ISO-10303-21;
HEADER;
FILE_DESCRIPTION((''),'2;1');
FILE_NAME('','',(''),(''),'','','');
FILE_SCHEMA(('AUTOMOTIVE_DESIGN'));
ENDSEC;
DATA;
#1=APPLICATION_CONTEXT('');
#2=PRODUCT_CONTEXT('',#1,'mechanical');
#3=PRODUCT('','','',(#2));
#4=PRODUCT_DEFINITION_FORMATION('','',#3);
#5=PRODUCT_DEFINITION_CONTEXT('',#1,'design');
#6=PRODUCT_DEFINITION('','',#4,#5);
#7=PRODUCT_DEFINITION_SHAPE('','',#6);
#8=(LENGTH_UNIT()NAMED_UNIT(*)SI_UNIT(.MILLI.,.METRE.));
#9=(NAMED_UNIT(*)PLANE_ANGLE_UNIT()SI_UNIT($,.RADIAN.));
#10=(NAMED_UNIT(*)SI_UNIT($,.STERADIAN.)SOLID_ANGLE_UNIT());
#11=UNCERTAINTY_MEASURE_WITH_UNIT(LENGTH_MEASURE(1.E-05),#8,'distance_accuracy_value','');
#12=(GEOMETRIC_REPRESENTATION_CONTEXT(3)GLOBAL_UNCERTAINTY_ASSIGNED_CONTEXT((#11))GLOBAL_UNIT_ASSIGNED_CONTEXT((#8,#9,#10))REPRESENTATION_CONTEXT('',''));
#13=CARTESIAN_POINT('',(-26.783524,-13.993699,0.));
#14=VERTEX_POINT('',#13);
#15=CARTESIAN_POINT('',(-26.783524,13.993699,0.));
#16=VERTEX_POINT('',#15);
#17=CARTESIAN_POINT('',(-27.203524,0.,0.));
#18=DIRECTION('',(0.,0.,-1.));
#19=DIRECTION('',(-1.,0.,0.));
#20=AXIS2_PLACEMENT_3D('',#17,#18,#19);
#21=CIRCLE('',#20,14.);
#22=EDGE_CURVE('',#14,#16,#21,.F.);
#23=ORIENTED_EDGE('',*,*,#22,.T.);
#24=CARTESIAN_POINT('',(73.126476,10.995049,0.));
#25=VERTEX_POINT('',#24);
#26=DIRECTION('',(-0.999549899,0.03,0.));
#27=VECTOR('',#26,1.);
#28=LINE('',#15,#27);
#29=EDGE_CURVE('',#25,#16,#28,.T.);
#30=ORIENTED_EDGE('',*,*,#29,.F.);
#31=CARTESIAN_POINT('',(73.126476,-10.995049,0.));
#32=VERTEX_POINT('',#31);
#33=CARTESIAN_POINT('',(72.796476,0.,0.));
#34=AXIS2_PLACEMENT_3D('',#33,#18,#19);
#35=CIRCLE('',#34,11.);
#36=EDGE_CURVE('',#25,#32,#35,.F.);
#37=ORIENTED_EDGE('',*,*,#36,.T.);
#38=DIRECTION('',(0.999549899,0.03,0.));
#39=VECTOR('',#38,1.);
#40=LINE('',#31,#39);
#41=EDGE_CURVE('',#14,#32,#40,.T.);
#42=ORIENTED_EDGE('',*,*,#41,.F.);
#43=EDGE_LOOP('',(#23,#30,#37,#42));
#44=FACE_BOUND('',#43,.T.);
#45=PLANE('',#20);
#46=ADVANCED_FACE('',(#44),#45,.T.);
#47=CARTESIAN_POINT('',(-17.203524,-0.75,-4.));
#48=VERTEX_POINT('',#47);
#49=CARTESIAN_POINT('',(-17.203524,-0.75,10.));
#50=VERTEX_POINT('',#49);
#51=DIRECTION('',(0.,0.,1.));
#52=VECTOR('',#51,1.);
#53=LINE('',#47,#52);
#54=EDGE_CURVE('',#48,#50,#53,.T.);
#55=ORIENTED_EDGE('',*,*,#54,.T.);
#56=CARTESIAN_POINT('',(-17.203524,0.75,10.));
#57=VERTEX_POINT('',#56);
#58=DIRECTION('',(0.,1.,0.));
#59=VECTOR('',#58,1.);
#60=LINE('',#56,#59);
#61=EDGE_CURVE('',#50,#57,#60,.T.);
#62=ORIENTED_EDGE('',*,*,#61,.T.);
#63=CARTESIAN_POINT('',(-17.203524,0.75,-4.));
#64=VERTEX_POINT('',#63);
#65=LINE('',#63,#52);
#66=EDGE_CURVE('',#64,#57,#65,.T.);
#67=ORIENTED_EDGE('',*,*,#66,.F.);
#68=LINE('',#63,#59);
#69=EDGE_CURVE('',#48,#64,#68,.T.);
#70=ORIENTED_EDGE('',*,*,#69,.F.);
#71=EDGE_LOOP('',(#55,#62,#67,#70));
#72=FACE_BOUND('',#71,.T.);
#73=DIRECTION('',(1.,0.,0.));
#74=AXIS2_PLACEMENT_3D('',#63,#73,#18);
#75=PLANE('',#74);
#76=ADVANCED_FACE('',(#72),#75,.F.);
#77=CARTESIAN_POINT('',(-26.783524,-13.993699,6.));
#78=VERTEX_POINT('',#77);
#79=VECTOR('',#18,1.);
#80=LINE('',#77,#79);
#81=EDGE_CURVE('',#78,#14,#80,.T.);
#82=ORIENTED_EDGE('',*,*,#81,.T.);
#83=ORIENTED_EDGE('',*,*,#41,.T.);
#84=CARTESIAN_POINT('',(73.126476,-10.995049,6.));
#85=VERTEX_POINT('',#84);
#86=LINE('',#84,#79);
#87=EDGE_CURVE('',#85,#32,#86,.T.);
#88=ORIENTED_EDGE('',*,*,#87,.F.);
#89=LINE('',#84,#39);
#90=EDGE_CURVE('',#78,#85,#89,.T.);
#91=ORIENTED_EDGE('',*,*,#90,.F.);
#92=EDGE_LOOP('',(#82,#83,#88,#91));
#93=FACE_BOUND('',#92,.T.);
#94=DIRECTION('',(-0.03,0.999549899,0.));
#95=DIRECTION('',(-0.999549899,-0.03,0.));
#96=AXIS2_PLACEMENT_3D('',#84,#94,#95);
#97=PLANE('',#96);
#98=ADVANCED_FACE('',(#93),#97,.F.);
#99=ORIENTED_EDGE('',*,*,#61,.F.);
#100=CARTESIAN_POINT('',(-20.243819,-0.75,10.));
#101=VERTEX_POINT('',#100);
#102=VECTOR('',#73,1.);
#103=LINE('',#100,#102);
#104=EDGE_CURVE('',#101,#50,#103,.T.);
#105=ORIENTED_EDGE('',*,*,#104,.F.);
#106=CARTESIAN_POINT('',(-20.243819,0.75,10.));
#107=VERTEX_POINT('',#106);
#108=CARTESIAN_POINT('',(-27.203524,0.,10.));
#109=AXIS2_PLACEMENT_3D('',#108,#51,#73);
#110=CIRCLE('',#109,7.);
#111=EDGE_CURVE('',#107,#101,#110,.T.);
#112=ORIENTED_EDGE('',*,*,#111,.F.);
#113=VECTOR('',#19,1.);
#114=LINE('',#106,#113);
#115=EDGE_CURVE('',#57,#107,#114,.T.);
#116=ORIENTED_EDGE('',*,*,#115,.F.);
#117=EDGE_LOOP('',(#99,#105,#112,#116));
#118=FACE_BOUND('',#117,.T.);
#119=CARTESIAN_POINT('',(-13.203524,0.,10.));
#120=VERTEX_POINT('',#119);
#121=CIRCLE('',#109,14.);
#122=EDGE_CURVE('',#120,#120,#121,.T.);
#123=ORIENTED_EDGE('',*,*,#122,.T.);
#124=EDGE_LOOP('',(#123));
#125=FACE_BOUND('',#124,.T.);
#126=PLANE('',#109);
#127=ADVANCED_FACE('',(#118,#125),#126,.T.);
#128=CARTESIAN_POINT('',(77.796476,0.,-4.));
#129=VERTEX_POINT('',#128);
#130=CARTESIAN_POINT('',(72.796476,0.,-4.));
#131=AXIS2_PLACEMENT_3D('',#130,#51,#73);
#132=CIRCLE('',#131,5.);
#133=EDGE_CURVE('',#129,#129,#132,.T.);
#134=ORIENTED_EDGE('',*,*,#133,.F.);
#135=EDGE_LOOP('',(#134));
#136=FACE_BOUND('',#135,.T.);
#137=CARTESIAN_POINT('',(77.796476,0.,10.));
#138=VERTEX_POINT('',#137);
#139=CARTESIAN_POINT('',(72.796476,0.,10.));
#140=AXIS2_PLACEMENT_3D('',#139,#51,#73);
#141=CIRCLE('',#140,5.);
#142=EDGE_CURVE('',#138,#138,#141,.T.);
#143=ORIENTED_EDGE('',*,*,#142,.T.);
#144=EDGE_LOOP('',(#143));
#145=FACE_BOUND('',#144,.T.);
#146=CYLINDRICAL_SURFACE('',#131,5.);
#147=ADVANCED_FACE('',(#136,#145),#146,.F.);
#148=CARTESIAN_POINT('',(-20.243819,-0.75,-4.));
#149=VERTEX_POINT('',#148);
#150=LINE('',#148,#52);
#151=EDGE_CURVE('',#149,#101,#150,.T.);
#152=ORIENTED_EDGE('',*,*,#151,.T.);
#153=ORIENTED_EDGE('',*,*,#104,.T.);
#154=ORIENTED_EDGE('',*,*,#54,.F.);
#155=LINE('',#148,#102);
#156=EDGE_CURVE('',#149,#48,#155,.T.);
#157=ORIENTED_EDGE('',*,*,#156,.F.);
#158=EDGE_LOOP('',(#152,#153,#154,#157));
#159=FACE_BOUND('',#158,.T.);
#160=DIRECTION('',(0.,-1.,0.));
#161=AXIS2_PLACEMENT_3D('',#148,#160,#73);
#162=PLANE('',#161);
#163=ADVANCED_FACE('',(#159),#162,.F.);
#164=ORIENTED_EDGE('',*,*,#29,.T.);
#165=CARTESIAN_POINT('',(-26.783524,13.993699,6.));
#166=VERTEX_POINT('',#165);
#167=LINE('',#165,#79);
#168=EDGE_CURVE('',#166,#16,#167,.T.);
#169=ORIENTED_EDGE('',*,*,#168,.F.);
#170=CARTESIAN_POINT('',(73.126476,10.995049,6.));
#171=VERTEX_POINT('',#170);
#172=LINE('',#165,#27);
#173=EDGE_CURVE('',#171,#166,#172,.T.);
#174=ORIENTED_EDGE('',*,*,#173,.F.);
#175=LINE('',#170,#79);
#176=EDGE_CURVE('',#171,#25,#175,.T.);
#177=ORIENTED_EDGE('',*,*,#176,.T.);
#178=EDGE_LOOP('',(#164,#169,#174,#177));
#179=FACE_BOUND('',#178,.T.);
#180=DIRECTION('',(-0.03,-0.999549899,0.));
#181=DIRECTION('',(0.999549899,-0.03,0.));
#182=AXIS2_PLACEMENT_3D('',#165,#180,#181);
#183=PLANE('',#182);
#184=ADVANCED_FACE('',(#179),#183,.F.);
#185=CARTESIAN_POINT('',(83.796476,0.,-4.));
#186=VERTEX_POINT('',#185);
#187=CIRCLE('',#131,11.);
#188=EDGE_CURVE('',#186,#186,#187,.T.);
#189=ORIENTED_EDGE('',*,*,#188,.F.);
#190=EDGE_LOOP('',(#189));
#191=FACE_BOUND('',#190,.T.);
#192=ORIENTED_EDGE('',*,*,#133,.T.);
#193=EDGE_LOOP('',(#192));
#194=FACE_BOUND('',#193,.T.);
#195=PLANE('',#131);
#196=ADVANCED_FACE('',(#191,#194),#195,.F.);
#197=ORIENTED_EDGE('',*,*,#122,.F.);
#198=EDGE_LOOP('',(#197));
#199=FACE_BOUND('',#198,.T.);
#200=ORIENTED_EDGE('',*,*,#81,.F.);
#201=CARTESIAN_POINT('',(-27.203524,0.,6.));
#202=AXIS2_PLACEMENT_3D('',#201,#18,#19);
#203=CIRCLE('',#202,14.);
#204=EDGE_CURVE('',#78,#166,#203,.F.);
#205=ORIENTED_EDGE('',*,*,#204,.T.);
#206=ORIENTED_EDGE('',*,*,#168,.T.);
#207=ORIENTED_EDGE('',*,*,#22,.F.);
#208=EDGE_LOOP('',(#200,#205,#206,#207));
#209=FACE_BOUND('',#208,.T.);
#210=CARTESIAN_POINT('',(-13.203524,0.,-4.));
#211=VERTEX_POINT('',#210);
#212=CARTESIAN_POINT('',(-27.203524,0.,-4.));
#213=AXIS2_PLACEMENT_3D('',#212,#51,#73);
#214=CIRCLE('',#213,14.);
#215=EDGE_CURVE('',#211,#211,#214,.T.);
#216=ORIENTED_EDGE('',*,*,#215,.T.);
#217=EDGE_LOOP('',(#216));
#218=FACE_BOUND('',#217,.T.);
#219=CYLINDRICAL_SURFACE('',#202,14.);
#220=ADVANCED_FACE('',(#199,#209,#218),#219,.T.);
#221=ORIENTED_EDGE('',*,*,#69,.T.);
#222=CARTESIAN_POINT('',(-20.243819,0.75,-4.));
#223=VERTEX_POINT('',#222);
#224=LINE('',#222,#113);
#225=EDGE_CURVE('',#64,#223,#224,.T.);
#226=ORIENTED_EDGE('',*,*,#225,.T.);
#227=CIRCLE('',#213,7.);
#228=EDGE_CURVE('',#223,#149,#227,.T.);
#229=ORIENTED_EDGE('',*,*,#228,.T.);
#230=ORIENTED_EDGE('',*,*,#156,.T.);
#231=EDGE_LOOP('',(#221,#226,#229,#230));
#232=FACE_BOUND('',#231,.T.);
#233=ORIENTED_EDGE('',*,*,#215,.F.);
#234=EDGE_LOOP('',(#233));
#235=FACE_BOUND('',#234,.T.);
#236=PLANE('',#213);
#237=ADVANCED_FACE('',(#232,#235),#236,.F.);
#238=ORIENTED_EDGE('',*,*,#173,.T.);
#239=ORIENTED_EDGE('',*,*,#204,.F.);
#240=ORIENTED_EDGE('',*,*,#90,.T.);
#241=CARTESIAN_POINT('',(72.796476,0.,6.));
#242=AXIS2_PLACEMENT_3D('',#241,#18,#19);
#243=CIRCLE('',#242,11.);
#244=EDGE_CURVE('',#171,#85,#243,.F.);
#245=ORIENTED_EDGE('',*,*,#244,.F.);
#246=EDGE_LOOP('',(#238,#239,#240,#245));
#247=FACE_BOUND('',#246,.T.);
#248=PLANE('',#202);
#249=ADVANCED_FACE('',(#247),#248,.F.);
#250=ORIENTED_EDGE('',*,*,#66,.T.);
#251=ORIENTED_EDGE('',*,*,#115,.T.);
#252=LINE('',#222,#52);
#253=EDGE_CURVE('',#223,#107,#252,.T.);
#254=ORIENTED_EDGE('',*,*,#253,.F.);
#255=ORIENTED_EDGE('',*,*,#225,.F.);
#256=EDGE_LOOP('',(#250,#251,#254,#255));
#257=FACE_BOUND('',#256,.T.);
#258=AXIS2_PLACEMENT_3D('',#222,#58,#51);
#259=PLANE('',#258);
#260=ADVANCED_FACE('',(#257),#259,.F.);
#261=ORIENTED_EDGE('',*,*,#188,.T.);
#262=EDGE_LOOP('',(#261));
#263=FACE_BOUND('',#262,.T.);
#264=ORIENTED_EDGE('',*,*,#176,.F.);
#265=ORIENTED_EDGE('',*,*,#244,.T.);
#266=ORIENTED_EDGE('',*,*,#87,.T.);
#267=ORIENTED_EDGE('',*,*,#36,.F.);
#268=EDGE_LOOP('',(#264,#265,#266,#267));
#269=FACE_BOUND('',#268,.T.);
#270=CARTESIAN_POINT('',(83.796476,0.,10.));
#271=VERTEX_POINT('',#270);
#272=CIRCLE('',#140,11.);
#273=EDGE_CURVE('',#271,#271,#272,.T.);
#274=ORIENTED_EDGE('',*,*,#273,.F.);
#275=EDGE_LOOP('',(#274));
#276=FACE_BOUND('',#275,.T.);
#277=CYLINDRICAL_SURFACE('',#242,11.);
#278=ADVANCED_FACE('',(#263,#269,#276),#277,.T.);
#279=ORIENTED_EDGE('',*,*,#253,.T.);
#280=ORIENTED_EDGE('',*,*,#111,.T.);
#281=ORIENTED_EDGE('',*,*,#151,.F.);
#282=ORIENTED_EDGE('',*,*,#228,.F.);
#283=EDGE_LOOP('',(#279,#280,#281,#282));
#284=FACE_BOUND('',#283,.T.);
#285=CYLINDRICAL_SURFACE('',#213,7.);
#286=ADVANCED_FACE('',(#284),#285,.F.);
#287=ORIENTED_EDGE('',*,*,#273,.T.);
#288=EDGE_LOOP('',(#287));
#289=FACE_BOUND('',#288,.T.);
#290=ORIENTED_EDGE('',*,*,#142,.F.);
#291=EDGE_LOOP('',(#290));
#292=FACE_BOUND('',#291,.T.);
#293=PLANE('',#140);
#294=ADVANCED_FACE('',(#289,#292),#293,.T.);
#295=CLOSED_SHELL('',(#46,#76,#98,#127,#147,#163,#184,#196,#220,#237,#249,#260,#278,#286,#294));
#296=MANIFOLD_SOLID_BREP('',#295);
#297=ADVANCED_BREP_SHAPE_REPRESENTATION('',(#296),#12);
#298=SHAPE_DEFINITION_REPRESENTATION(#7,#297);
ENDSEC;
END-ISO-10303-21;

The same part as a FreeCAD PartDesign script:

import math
import FreeCAD as App
import Part
import Sketcher

V = App.Vector

doc = App.newDocument("Part")
body = doc.addObject("PartDesign::Body", "Body")

# Sketch on XY plane
sketch1 = body.newObject("Sketcher::SketchObject", "Sketch")
sketch1.AttachmentSupport = (doc.getObject("XY_Plane"), [""])
sketch1.MapMode = "FlatFace"
sketch1.addGeometry([
    Part.LineSegment(V(73, 11, 0), V(-27, 14, 0)),
    Part.ArcOfCircle(Part.Circle(V(-27, 0, 0), V(0, 0, 1), 14), math.radians(88), math.radians(272)),
    Part.LineSegment(V(-27, -14, 0), V(73, -11, 0)),
    Part.ArcOfCircle(Part.Circle(V(73, 0, 0), V(0, 0, 1), 11), math.radians(-88), math.radians(88)),
], False)
sketch1.addConstraint([
    Sketcher.Constraint("Tangent", 0, 2, 1, 1),
    Sketcher.Constraint("Tangent", 1, 2, 2, 1),
    Sketcher.Constraint("Tangent", 2, 2, 3, 1),
    Sketcher.Constraint("Tangent", 3, 2, 0, 1),
    Sketcher.Constraint("Symmetric", 0, 2, 1, 2, -1),
    Sketcher.Constraint("Radius", 1, 14.0),
    Sketcher.Constraint("Radius", 3, 11.0),
    Sketcher.Constraint("DistanceX", 1, 3, 3, 3, 100.0),
    Sketcher.Constraint("DistanceX", 1, 3, -1, 1, 27.203524),
])
pad1 = body.newObject("PartDesign::Pad", "Pad")
pad1.Profile = sketch1
pad1.Length = 6

# Sketch on XY plane
sketch2 = body.newObject("Sketcher::SketchObject", "Sketch001")
sketch2.AttachmentSupport = (doc.getObject("XY_Plane"), [""])
sketch2.MapMode = "FlatFace"
sketch2.AttachmentOffset = App.Placement(V(0, 0, 3), App.Rotation())
sketch2.addGeometry([
    Part.Circle(V(-27, 0, 0), V(0, 0, 1), 14),
    Part.Circle(V(73, 0, 0), V(0, 0, 1), 11),
], False)
sketch2.addConstraint([
    Sketcher.Constraint("PointOnObject", 0, 3, -1),
    Sketcher.Constraint("PointOnObject", 1, 3, -1),
    Sketcher.Constraint("Diameter", 0, 28.0),
    Sketcher.Constraint("Diameter", 1, 22.0),
    Sketcher.Constraint("DistanceX", 0, 3, 1, 3, 100.0),
    Sketcher.Constraint("DistanceX", 0, 3, -1, 1, 27.203524),
])
pad2 = body.newObject("PartDesign::Pad", "Pad001")
pad2.Profile = sketch2
pad2.Length = 14
pad2.Midplane = True

# Sketch on XY plane
sketch3 = body.newObject("Sketcher::SketchObject", "Sketch002")
sketch3.AttachmentSupport = (doc.getObject("XY_Plane"), [""])
sketch3.MapMode = "FlatFace"
sketch3.AttachmentOffset = App.Placement(V(0, 0, 10), App.Rotation())
sketch3.addGeometry([
    Part.Circle(V(72.8, 0, 0), V(0, 0, 1), 5),  # 0
    Part.LineSegment(V(-17.2, 0.8, 0), V(-20.2, 0.8, 0)),  # 1
    Part.ArcOfCircle(Part.Circle(V(-27.2, 0, 0), V(0, 0, 1), 7), math.radians(6), math.radians(354)),  # 2
    Part.LineSegment(V(-20.2, -0.8, 0), V(-17.2, -0.8, 0)),  # 3
    Part.LineSegment(V(-17.2, -0.8, 0), V(-17.2, 0.8, 0)),  # 4
], False)
sketch3.addConstraint([
    Sketcher.Constraint("Coincident", 1, 2, 2, 1),
    Sketcher.Constraint("Coincident", 2, 2, 3, 1),
    Sketcher.Constraint("Coincident", 3, 2, 4, 1),
    Sketcher.Constraint("Coincident", 4, 2, 1, 1),
    Sketcher.Constraint("Horizontal", 1),
    Sketcher.Constraint("Horizontal", 3),
    Sketcher.Constraint("Vertical", 4),
    Sketcher.Constraint("Symmetric", 1, 2, 2, 2, -1),
    Sketcher.Constraint("PointOnObject", 0, 3, -1),
    Sketcher.Constraint("Diameter", 0, 10.0),
    Sketcher.Constraint("Radius", 2, 7.0),
    Sketcher.Constraint("DistanceY", 4, 1, 4, 2, 1.5),
    Sketcher.Constraint("DistanceX", 2, 3, 0, 3, 100.0),
    Sketcher.Constraint("DistanceX", 2, 3, 3, 2, 10.0),
    Sketcher.Constraint("DistanceX", 1, 2, -1, 1, 20.243819),
])
pocket1 = body.newObject("PartDesign::Pocket", "Pocket")
pocket1.Profile = sketch3
pocket1.Type = "ThroughAll"

doc.recompute()
